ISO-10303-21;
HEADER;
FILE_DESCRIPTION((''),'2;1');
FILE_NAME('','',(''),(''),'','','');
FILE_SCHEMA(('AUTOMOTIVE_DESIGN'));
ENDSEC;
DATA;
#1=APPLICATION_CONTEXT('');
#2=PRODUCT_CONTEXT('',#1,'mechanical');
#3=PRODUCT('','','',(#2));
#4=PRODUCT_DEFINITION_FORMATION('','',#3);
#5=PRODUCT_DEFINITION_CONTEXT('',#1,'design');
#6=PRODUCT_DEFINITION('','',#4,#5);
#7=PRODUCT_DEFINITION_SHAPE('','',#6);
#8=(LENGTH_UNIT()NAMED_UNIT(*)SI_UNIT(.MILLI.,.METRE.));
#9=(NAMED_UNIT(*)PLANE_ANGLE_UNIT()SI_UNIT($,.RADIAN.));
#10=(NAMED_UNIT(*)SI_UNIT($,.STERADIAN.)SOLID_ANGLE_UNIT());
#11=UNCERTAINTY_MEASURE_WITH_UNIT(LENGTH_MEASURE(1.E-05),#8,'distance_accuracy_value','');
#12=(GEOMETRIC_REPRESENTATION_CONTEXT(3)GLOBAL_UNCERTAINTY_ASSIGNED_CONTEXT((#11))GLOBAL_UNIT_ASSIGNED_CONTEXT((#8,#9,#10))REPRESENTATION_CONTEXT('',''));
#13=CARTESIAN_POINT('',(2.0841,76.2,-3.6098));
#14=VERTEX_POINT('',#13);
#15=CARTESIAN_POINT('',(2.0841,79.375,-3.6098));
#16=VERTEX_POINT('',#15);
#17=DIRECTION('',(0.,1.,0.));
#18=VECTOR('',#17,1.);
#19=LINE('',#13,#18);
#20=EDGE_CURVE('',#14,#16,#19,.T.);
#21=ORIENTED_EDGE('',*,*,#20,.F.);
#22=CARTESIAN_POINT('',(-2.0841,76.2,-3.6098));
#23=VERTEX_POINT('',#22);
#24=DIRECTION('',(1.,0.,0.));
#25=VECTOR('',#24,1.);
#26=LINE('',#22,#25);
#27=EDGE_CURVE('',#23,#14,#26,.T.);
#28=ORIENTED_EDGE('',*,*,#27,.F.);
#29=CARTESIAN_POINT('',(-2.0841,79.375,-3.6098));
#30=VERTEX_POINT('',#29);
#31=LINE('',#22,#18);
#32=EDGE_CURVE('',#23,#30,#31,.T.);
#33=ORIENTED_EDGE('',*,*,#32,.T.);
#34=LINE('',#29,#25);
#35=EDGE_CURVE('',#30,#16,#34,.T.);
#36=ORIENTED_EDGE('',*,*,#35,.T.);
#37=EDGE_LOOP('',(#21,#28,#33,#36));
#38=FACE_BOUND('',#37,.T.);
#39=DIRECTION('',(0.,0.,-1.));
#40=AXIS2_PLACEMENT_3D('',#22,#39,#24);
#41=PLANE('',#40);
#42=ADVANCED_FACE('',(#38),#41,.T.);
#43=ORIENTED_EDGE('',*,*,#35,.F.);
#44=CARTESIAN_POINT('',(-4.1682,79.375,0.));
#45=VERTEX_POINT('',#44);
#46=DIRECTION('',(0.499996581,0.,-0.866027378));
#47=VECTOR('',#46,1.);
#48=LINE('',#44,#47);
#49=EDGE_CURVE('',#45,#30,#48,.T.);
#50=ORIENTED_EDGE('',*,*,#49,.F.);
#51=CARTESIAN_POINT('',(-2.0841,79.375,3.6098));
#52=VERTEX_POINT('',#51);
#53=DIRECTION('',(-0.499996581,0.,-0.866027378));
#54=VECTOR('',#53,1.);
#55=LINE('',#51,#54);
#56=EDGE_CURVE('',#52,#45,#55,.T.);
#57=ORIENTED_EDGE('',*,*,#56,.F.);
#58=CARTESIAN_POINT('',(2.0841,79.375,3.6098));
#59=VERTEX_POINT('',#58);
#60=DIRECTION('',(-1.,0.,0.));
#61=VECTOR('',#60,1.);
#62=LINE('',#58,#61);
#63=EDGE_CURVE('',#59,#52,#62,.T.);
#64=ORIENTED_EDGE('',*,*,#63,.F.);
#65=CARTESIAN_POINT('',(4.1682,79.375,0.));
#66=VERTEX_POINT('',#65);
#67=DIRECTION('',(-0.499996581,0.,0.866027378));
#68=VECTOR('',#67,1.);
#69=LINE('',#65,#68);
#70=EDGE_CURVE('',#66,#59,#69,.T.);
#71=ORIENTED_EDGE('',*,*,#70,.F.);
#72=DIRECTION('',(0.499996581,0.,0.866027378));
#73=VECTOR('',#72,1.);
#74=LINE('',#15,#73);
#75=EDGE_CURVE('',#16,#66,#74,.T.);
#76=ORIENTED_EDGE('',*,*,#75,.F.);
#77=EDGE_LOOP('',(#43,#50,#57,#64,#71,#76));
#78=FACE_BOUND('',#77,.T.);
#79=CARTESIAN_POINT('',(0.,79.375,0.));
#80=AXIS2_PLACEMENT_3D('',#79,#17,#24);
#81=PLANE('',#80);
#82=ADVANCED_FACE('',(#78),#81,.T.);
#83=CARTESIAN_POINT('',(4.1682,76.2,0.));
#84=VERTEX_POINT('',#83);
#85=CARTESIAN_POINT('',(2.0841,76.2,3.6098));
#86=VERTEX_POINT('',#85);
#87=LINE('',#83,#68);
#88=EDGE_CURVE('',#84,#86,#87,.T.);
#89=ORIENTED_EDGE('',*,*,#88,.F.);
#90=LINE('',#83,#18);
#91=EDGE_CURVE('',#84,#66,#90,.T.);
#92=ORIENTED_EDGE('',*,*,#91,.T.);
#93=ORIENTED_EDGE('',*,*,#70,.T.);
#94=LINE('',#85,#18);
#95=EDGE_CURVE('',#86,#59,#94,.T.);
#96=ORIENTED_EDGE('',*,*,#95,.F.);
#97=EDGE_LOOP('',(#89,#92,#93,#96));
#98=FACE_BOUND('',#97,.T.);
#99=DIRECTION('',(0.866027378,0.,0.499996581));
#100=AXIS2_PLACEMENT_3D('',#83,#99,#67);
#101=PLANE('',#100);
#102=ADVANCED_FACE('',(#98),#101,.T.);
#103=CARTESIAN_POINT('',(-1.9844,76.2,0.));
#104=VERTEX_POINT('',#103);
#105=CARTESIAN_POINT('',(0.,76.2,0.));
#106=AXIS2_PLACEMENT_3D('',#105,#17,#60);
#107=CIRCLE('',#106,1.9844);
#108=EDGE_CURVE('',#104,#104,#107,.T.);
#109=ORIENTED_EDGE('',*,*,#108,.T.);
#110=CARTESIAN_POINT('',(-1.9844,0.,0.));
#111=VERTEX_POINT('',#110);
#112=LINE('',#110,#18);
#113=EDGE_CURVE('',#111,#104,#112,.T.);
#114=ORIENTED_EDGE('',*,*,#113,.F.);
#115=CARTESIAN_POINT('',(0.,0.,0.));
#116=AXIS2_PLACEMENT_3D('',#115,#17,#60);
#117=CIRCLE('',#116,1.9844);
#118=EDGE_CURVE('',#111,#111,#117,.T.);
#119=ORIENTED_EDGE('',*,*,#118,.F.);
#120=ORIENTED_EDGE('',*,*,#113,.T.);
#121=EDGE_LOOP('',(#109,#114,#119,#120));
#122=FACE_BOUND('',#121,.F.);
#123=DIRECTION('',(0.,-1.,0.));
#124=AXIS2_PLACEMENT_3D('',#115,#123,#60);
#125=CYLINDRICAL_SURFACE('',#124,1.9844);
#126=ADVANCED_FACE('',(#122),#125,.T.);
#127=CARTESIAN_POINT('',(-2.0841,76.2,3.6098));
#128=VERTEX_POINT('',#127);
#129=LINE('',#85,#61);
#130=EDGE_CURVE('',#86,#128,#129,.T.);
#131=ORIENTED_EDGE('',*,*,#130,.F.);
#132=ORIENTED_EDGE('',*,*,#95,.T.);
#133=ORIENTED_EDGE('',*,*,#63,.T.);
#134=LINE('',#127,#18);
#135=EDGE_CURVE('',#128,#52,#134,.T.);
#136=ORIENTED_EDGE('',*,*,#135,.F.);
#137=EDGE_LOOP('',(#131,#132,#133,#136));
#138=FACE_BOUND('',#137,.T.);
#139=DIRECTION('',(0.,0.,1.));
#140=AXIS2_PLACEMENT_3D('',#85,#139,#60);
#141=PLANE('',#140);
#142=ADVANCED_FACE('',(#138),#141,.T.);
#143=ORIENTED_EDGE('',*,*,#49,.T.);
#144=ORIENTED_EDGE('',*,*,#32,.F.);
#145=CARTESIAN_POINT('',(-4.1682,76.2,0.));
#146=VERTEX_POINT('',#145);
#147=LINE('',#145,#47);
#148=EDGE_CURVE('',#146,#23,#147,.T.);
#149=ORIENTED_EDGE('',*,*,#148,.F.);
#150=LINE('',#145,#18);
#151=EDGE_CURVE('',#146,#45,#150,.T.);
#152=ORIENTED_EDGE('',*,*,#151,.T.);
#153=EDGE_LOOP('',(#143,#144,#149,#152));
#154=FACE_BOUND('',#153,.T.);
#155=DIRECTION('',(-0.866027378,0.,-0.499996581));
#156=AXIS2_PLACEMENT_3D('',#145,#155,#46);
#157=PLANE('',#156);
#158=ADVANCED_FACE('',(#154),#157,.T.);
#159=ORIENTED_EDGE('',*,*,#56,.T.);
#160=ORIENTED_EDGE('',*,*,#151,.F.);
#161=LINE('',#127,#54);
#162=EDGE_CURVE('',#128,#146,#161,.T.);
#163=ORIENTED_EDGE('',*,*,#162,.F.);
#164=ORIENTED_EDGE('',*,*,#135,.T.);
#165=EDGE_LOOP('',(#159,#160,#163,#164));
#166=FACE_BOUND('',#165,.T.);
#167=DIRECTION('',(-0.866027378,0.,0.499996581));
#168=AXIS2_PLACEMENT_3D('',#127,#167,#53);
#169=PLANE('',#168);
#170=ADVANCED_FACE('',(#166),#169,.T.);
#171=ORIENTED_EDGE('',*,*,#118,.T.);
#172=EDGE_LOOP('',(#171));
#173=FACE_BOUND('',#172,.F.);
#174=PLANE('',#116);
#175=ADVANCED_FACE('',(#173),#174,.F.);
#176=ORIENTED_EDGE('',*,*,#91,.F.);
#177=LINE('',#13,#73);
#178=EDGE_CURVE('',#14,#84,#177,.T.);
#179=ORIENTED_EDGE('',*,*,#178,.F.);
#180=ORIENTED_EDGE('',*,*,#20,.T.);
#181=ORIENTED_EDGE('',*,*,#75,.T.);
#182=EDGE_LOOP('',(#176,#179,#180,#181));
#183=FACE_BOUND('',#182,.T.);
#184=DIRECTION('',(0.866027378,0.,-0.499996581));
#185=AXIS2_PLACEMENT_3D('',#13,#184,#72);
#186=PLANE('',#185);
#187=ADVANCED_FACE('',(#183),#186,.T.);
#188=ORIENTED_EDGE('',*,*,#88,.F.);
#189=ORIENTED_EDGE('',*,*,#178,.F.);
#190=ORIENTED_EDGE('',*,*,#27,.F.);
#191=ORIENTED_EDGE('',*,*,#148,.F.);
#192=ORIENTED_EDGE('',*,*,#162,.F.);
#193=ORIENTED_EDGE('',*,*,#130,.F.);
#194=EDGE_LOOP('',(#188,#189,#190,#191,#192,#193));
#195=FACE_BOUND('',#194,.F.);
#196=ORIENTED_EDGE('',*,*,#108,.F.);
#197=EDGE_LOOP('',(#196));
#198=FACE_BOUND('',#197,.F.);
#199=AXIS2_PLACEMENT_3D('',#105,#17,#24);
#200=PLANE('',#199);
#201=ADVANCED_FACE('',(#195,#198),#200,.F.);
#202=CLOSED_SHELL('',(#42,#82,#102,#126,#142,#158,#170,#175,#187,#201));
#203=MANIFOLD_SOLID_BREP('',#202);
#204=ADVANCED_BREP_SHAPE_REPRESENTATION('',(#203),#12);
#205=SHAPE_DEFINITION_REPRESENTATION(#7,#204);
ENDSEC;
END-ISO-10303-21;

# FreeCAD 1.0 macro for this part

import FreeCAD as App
import Part
import Sketcher

V = App.Vector
Q = App.Units.Quantity

doc = App.newDocument("Part")
body = doc.addObject("PartDesign::Body", "Body")

sketch1 = body.newObject("Sketcher::SketchObject", "Sketch")
sketch1.AttachmentSupport = (doc.getObject("XZ_Plane"), [""])
sketch1.MapMode = "FlatFace"
sketch1.addGeometry(Part.Circle(V(0, 0, 0), V(0, 0, 1), 2), False)
sketch1.addConstraint(Sketcher.Constraint("Coincident", 0, 3, -1, 1))
sketch1.addConstraint(Sketcher.Constraint("Diameter", 0, Q("0.156252 in")))
pad1 = body.newObject("PartDesign::Pad", "Pad")
pad1.Profile = sketch1
pad1.Length = Q("3 in")
pad1.Reversed = True

sketch2 = body.newObject("Sketcher::SketchObject", "Sketch001")
sketch2.AttachmentSupport = (doc.getObject("XZ_Plane"), [""])
sketch2.MapMode = "FlatFace"
sketch2.AttachmentOffset = App.Placement(V(0, 0, -3 * 25.4), App.Rotation())
sketch2.addGeometry(Part.LineSegment(V(-2.1, -3.6, 0), V(-4.2, 0, 0)), False)
sketch2.addGeometry(Part.LineSegment(V(-4.2, 0, 0), V(-2.1, 3.6, 0)), False)
sketch2.addGeometry(Part.LineSegment(V(-2.1, 3.6, 0), V(2.1, 3.6, 0)), False)
sketch2.addGeometry(Part.LineSegment(V(2.1, 3.6, 0), V(4.2, 0, 0)), False)
sketch2.addGeometry(Part.LineSegment(V(4.2, 0, 0), V(2.1, -3.6, 0)), False)
sketch2.addGeometry(Part.LineSegment(V(2.1, -3.6, 0), V(-2.1, -3.6, 0)), False)
sketch2.addConstraint(Sketcher.Constraint("Coincident", 0, 2, 1, 1))
sketch2.addConstraint(Sketcher.Constraint("Coincident", 1, 2, 2, 1))
sketch2.addConstraint(Sketcher.Constraint("Coincident", 2, 2, 3, 1))
sketch2.addConstraint(Sketcher.Constraint("Coincident", 3, 2, 4, 1))
sketch2.addConstraint(Sketcher.Constraint("Coincident", 4, 2, 5, 1))
sketch2.addConstraint(Sketcher.Constraint("Coincident", 5, 2, 0, 1))
sketch2.addConstraint(Sketcher.Constraint("Horizontal", 2))
sketch2.addConstraint(Sketcher.Constraint("Horizontal", 5))
sketch2.addConstraint(Sketcher.Constraint("Symmetric", 0, 2, 3, 2, -1, 1))
sketch2.addConstraint(Sketcher.Constraint("Symmetric", 1, 2, 4, 2, -1, 1))
sketch2.addConstraint(Sketcher.Constraint("PointOnObject", 0, 2, -1))
sketch2.addConstraint(Sketcher.Constraint("Parallel", 0, 3))
sketch2.addConstraint(Sketcher.Constraint("Vertical", 2, 2, 4, 2))
sketch2.addConstraint(Sketcher.Constraint("Angle", 0, Q("119.9998 deg")))
sketch2.addConstraint(Sketcher.Constraint("DistanceX", 2, 1, 2, 2, Q("0.1641 in")))
sketch2.addConstraint(Sketcher.Constraint("Distance", 0, Q("0.1641 in")))
pad2 = body.newObject("PartDesign::Pad", "Pad001")
pad2.Profile = sketch2
pad2.Length = Q("0.125 in")
pad2.Reversed = True

doc.recompute()
